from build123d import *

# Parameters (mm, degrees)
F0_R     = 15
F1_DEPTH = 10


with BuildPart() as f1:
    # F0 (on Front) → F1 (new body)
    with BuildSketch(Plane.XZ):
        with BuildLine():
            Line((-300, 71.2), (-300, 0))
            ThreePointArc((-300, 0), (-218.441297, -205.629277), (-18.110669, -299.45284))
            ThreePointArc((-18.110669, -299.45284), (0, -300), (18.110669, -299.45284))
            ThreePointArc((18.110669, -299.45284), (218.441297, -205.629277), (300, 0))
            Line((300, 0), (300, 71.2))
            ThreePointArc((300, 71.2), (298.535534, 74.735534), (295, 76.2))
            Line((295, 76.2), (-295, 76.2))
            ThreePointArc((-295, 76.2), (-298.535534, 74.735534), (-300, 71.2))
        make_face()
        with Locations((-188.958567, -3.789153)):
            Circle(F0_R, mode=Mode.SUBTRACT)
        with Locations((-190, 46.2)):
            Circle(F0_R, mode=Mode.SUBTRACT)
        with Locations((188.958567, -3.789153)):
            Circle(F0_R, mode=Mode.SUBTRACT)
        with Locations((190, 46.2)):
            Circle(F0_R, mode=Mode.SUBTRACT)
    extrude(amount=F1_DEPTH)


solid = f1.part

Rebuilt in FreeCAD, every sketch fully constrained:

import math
import FreeCAD as App
import Part
import Sketcher

V = App.Vector
Q = App.Units.Quantity

doc = App.newDocument("Part")
body = doc.addObject("PartDesign::Body", "Body")

# Sketch on XZ plane
sketch1 = doc.addObject("Sketcher::SketchObject", "Sketch")
body.addObject(sketch1)
sketch1.AttachmentSupport = (doc.XZ_Plane, [""])
sketch1.MapMode = "FlatFace"
sketch1.addGeometry([
    Part.LineSegment(V(-300, 71.2, 0), V(-300, 0, 0)),  # 0
    Part.ArcOfCircle(Part.Circle(V(0, 0.000001, 0), V(0, 0, 1), 300), math.radians(-180), math.radians(-93.460987)),  # 1
    Part.ArcOfCircle(Part.Circle(V(0, -0.00026, 0), V(0, 0, 1), 299.99974), math.radians(-93.46099), math.radians(-86.53901)),  # 2
    Part.ArcOfCircle(Part.Circle(V(0, 0.000001, 0), V(0, 0, 1), 300), math.radians(-86.539013), math.radians(0)),  # 3
    Part.LineSegment(V(300, 0, 0), V(300, 71.2, 0)),  # 4
    Part.ArcOfCircle(Part.Circle(V(295, 71.2, 0), V(0, 0, 1), 5), math.radians(-0.000004), math.radians(90.000004)),  # 5
    Part.LineSegment(V(295, 76.2, 0), V(-295, 76.2, 0)),  # 6
    Part.ArcOfCircle(Part.Circle(V(-295, 71.2, 0), V(0, 0, 1), 5), math.radians(89.999996), math.radians(180.000004)),  # 7
    Part.Circle(V(-188.958567, -3.789153, 0), V(0, 0, 1), 15),  # 8
    Part.Circle(V(188.958567, -3.789153, 0), V(0, 0, 1), 15),  # 9
    Part.Circle(V(-190, 46.2, 0), V(0, 0, 1), 15),  # 10
    Part.Circle(V(190, 46.2, 0), V(0, 0, 1), 15),  # 11
], False)
sketch1.addConstraint([
    Sketcher.Constraint("Coincident", 0, 2, 1, 1),
    Sketcher.Constraint("Coincident", 1, 2, 2, 1),
    Sketcher.Constraint("Coincident", 2, 2, 3, 1),
    Sketcher.Constraint("Coincident", 3, 2, 4, 1),
    Sketcher.Constraint("Coincident", 4, 2, 5, 1),
    Sketcher.Constraint("Coincident", 5, 2, 6, 1),
    Sketcher.Constraint("Coincident", 6, 2, 7, 1),
    Sketcher.Constraint("Coincident", 7, 2, 0, 1),
    Sketcher.Constraint("Vertical", 0),
    Sketcher.Constraint("Vertical", 4),
    Sketcher.Constraint("Horizontal", 6),
    Sketcher.Constraint("Coincident", 1, 3, -1, 1),
    Sketcher.Constraint("Coincident", 3, 3, -1, 1),
    Sketcher.Constraint("PointOnObject", 2, 3, -2),
    Sketcher.Constraint("PointOnObject", 0, 2, -1),
    Sketcher.Constraint("PointOnObject", 3, 2, -1),
    Sketcher.Constraint("Diameter", 8, Q("30 mm")),
    Sketcher.Constraint("Diameter", 9, Q("30 mm")),
    Sketcher.Constraint("Diameter", 10, Q("30 mm")),
    Sketcher.Constraint("Diameter", 11, Q("30 mm")),
    Sketcher.Constraint("Radius", 1, Q("300 mm")),
    Sketcher.Constraint("Radius", 5, Q("5 mm")),
    Sketcher.Constraint("Radius", 7, Q("5 mm")),
    Sketcher.Constraint("DistanceX", 6, 2, 6, 1, Q("590 mm")),
    Sketcher.Constraint("DistanceY", 0, 2, 0, 1, Q("71.2 mm")),
    Sketcher.Constraint("DistanceY", 4, 1, 4, 2, Q("71.2 mm")),
    Sketcher.Constraint("DistanceX", 10, 3, -1, 1, Q("190 mm")),
    Sketcher.Constraint("DistanceX", -1, 1, 11, 3, Q("190 mm")),
    Sketcher.Constraint("DistanceX", -1, 1, 5, 2, Q("295 mm")),
    Sketcher.Constraint("DistanceY", 10, 3, 7, 3, Q("25 mm")),
    Sketcher.Constraint("DistanceY", 11, 3, 5, 3, Q("25 mm")),
    Sketcher.Constraint("DistanceY", 11, 3, 4, 2, Q("25 mm")),
    Sketcher.Constraint("Radius", 2, Q("299.99974 mm")),
    Sketcher.Constraint("DistanceX", 8, 3, 1, 2, Q("170.847898 mm")),
    Sketcher.Constraint("DistanceX", 1, 2, -1, 1, Q("18.110669 mm")),
    Sketcher.Constraint("DistanceX", -1, 1, 2, 2, Q("18.110669 mm")),
    Sketcher.Constraint("DistanceY", 8, 3, -1, 1, Q("3.789153 mm")),
    Sketcher.Constraint("DistanceX", -1, 1, 9, 3, Q("188.958567 mm")),
    Sketcher.Constraint("DistanceY", 9, 3, -1, 1, Q("3.789153 mm")),
])
pad1 = doc.addObject("PartDesign::Pad", "Pad")
body.addObject(pad1)
pad1.Profile = sketch1
pad1.Length = 10

doc.recompute()
